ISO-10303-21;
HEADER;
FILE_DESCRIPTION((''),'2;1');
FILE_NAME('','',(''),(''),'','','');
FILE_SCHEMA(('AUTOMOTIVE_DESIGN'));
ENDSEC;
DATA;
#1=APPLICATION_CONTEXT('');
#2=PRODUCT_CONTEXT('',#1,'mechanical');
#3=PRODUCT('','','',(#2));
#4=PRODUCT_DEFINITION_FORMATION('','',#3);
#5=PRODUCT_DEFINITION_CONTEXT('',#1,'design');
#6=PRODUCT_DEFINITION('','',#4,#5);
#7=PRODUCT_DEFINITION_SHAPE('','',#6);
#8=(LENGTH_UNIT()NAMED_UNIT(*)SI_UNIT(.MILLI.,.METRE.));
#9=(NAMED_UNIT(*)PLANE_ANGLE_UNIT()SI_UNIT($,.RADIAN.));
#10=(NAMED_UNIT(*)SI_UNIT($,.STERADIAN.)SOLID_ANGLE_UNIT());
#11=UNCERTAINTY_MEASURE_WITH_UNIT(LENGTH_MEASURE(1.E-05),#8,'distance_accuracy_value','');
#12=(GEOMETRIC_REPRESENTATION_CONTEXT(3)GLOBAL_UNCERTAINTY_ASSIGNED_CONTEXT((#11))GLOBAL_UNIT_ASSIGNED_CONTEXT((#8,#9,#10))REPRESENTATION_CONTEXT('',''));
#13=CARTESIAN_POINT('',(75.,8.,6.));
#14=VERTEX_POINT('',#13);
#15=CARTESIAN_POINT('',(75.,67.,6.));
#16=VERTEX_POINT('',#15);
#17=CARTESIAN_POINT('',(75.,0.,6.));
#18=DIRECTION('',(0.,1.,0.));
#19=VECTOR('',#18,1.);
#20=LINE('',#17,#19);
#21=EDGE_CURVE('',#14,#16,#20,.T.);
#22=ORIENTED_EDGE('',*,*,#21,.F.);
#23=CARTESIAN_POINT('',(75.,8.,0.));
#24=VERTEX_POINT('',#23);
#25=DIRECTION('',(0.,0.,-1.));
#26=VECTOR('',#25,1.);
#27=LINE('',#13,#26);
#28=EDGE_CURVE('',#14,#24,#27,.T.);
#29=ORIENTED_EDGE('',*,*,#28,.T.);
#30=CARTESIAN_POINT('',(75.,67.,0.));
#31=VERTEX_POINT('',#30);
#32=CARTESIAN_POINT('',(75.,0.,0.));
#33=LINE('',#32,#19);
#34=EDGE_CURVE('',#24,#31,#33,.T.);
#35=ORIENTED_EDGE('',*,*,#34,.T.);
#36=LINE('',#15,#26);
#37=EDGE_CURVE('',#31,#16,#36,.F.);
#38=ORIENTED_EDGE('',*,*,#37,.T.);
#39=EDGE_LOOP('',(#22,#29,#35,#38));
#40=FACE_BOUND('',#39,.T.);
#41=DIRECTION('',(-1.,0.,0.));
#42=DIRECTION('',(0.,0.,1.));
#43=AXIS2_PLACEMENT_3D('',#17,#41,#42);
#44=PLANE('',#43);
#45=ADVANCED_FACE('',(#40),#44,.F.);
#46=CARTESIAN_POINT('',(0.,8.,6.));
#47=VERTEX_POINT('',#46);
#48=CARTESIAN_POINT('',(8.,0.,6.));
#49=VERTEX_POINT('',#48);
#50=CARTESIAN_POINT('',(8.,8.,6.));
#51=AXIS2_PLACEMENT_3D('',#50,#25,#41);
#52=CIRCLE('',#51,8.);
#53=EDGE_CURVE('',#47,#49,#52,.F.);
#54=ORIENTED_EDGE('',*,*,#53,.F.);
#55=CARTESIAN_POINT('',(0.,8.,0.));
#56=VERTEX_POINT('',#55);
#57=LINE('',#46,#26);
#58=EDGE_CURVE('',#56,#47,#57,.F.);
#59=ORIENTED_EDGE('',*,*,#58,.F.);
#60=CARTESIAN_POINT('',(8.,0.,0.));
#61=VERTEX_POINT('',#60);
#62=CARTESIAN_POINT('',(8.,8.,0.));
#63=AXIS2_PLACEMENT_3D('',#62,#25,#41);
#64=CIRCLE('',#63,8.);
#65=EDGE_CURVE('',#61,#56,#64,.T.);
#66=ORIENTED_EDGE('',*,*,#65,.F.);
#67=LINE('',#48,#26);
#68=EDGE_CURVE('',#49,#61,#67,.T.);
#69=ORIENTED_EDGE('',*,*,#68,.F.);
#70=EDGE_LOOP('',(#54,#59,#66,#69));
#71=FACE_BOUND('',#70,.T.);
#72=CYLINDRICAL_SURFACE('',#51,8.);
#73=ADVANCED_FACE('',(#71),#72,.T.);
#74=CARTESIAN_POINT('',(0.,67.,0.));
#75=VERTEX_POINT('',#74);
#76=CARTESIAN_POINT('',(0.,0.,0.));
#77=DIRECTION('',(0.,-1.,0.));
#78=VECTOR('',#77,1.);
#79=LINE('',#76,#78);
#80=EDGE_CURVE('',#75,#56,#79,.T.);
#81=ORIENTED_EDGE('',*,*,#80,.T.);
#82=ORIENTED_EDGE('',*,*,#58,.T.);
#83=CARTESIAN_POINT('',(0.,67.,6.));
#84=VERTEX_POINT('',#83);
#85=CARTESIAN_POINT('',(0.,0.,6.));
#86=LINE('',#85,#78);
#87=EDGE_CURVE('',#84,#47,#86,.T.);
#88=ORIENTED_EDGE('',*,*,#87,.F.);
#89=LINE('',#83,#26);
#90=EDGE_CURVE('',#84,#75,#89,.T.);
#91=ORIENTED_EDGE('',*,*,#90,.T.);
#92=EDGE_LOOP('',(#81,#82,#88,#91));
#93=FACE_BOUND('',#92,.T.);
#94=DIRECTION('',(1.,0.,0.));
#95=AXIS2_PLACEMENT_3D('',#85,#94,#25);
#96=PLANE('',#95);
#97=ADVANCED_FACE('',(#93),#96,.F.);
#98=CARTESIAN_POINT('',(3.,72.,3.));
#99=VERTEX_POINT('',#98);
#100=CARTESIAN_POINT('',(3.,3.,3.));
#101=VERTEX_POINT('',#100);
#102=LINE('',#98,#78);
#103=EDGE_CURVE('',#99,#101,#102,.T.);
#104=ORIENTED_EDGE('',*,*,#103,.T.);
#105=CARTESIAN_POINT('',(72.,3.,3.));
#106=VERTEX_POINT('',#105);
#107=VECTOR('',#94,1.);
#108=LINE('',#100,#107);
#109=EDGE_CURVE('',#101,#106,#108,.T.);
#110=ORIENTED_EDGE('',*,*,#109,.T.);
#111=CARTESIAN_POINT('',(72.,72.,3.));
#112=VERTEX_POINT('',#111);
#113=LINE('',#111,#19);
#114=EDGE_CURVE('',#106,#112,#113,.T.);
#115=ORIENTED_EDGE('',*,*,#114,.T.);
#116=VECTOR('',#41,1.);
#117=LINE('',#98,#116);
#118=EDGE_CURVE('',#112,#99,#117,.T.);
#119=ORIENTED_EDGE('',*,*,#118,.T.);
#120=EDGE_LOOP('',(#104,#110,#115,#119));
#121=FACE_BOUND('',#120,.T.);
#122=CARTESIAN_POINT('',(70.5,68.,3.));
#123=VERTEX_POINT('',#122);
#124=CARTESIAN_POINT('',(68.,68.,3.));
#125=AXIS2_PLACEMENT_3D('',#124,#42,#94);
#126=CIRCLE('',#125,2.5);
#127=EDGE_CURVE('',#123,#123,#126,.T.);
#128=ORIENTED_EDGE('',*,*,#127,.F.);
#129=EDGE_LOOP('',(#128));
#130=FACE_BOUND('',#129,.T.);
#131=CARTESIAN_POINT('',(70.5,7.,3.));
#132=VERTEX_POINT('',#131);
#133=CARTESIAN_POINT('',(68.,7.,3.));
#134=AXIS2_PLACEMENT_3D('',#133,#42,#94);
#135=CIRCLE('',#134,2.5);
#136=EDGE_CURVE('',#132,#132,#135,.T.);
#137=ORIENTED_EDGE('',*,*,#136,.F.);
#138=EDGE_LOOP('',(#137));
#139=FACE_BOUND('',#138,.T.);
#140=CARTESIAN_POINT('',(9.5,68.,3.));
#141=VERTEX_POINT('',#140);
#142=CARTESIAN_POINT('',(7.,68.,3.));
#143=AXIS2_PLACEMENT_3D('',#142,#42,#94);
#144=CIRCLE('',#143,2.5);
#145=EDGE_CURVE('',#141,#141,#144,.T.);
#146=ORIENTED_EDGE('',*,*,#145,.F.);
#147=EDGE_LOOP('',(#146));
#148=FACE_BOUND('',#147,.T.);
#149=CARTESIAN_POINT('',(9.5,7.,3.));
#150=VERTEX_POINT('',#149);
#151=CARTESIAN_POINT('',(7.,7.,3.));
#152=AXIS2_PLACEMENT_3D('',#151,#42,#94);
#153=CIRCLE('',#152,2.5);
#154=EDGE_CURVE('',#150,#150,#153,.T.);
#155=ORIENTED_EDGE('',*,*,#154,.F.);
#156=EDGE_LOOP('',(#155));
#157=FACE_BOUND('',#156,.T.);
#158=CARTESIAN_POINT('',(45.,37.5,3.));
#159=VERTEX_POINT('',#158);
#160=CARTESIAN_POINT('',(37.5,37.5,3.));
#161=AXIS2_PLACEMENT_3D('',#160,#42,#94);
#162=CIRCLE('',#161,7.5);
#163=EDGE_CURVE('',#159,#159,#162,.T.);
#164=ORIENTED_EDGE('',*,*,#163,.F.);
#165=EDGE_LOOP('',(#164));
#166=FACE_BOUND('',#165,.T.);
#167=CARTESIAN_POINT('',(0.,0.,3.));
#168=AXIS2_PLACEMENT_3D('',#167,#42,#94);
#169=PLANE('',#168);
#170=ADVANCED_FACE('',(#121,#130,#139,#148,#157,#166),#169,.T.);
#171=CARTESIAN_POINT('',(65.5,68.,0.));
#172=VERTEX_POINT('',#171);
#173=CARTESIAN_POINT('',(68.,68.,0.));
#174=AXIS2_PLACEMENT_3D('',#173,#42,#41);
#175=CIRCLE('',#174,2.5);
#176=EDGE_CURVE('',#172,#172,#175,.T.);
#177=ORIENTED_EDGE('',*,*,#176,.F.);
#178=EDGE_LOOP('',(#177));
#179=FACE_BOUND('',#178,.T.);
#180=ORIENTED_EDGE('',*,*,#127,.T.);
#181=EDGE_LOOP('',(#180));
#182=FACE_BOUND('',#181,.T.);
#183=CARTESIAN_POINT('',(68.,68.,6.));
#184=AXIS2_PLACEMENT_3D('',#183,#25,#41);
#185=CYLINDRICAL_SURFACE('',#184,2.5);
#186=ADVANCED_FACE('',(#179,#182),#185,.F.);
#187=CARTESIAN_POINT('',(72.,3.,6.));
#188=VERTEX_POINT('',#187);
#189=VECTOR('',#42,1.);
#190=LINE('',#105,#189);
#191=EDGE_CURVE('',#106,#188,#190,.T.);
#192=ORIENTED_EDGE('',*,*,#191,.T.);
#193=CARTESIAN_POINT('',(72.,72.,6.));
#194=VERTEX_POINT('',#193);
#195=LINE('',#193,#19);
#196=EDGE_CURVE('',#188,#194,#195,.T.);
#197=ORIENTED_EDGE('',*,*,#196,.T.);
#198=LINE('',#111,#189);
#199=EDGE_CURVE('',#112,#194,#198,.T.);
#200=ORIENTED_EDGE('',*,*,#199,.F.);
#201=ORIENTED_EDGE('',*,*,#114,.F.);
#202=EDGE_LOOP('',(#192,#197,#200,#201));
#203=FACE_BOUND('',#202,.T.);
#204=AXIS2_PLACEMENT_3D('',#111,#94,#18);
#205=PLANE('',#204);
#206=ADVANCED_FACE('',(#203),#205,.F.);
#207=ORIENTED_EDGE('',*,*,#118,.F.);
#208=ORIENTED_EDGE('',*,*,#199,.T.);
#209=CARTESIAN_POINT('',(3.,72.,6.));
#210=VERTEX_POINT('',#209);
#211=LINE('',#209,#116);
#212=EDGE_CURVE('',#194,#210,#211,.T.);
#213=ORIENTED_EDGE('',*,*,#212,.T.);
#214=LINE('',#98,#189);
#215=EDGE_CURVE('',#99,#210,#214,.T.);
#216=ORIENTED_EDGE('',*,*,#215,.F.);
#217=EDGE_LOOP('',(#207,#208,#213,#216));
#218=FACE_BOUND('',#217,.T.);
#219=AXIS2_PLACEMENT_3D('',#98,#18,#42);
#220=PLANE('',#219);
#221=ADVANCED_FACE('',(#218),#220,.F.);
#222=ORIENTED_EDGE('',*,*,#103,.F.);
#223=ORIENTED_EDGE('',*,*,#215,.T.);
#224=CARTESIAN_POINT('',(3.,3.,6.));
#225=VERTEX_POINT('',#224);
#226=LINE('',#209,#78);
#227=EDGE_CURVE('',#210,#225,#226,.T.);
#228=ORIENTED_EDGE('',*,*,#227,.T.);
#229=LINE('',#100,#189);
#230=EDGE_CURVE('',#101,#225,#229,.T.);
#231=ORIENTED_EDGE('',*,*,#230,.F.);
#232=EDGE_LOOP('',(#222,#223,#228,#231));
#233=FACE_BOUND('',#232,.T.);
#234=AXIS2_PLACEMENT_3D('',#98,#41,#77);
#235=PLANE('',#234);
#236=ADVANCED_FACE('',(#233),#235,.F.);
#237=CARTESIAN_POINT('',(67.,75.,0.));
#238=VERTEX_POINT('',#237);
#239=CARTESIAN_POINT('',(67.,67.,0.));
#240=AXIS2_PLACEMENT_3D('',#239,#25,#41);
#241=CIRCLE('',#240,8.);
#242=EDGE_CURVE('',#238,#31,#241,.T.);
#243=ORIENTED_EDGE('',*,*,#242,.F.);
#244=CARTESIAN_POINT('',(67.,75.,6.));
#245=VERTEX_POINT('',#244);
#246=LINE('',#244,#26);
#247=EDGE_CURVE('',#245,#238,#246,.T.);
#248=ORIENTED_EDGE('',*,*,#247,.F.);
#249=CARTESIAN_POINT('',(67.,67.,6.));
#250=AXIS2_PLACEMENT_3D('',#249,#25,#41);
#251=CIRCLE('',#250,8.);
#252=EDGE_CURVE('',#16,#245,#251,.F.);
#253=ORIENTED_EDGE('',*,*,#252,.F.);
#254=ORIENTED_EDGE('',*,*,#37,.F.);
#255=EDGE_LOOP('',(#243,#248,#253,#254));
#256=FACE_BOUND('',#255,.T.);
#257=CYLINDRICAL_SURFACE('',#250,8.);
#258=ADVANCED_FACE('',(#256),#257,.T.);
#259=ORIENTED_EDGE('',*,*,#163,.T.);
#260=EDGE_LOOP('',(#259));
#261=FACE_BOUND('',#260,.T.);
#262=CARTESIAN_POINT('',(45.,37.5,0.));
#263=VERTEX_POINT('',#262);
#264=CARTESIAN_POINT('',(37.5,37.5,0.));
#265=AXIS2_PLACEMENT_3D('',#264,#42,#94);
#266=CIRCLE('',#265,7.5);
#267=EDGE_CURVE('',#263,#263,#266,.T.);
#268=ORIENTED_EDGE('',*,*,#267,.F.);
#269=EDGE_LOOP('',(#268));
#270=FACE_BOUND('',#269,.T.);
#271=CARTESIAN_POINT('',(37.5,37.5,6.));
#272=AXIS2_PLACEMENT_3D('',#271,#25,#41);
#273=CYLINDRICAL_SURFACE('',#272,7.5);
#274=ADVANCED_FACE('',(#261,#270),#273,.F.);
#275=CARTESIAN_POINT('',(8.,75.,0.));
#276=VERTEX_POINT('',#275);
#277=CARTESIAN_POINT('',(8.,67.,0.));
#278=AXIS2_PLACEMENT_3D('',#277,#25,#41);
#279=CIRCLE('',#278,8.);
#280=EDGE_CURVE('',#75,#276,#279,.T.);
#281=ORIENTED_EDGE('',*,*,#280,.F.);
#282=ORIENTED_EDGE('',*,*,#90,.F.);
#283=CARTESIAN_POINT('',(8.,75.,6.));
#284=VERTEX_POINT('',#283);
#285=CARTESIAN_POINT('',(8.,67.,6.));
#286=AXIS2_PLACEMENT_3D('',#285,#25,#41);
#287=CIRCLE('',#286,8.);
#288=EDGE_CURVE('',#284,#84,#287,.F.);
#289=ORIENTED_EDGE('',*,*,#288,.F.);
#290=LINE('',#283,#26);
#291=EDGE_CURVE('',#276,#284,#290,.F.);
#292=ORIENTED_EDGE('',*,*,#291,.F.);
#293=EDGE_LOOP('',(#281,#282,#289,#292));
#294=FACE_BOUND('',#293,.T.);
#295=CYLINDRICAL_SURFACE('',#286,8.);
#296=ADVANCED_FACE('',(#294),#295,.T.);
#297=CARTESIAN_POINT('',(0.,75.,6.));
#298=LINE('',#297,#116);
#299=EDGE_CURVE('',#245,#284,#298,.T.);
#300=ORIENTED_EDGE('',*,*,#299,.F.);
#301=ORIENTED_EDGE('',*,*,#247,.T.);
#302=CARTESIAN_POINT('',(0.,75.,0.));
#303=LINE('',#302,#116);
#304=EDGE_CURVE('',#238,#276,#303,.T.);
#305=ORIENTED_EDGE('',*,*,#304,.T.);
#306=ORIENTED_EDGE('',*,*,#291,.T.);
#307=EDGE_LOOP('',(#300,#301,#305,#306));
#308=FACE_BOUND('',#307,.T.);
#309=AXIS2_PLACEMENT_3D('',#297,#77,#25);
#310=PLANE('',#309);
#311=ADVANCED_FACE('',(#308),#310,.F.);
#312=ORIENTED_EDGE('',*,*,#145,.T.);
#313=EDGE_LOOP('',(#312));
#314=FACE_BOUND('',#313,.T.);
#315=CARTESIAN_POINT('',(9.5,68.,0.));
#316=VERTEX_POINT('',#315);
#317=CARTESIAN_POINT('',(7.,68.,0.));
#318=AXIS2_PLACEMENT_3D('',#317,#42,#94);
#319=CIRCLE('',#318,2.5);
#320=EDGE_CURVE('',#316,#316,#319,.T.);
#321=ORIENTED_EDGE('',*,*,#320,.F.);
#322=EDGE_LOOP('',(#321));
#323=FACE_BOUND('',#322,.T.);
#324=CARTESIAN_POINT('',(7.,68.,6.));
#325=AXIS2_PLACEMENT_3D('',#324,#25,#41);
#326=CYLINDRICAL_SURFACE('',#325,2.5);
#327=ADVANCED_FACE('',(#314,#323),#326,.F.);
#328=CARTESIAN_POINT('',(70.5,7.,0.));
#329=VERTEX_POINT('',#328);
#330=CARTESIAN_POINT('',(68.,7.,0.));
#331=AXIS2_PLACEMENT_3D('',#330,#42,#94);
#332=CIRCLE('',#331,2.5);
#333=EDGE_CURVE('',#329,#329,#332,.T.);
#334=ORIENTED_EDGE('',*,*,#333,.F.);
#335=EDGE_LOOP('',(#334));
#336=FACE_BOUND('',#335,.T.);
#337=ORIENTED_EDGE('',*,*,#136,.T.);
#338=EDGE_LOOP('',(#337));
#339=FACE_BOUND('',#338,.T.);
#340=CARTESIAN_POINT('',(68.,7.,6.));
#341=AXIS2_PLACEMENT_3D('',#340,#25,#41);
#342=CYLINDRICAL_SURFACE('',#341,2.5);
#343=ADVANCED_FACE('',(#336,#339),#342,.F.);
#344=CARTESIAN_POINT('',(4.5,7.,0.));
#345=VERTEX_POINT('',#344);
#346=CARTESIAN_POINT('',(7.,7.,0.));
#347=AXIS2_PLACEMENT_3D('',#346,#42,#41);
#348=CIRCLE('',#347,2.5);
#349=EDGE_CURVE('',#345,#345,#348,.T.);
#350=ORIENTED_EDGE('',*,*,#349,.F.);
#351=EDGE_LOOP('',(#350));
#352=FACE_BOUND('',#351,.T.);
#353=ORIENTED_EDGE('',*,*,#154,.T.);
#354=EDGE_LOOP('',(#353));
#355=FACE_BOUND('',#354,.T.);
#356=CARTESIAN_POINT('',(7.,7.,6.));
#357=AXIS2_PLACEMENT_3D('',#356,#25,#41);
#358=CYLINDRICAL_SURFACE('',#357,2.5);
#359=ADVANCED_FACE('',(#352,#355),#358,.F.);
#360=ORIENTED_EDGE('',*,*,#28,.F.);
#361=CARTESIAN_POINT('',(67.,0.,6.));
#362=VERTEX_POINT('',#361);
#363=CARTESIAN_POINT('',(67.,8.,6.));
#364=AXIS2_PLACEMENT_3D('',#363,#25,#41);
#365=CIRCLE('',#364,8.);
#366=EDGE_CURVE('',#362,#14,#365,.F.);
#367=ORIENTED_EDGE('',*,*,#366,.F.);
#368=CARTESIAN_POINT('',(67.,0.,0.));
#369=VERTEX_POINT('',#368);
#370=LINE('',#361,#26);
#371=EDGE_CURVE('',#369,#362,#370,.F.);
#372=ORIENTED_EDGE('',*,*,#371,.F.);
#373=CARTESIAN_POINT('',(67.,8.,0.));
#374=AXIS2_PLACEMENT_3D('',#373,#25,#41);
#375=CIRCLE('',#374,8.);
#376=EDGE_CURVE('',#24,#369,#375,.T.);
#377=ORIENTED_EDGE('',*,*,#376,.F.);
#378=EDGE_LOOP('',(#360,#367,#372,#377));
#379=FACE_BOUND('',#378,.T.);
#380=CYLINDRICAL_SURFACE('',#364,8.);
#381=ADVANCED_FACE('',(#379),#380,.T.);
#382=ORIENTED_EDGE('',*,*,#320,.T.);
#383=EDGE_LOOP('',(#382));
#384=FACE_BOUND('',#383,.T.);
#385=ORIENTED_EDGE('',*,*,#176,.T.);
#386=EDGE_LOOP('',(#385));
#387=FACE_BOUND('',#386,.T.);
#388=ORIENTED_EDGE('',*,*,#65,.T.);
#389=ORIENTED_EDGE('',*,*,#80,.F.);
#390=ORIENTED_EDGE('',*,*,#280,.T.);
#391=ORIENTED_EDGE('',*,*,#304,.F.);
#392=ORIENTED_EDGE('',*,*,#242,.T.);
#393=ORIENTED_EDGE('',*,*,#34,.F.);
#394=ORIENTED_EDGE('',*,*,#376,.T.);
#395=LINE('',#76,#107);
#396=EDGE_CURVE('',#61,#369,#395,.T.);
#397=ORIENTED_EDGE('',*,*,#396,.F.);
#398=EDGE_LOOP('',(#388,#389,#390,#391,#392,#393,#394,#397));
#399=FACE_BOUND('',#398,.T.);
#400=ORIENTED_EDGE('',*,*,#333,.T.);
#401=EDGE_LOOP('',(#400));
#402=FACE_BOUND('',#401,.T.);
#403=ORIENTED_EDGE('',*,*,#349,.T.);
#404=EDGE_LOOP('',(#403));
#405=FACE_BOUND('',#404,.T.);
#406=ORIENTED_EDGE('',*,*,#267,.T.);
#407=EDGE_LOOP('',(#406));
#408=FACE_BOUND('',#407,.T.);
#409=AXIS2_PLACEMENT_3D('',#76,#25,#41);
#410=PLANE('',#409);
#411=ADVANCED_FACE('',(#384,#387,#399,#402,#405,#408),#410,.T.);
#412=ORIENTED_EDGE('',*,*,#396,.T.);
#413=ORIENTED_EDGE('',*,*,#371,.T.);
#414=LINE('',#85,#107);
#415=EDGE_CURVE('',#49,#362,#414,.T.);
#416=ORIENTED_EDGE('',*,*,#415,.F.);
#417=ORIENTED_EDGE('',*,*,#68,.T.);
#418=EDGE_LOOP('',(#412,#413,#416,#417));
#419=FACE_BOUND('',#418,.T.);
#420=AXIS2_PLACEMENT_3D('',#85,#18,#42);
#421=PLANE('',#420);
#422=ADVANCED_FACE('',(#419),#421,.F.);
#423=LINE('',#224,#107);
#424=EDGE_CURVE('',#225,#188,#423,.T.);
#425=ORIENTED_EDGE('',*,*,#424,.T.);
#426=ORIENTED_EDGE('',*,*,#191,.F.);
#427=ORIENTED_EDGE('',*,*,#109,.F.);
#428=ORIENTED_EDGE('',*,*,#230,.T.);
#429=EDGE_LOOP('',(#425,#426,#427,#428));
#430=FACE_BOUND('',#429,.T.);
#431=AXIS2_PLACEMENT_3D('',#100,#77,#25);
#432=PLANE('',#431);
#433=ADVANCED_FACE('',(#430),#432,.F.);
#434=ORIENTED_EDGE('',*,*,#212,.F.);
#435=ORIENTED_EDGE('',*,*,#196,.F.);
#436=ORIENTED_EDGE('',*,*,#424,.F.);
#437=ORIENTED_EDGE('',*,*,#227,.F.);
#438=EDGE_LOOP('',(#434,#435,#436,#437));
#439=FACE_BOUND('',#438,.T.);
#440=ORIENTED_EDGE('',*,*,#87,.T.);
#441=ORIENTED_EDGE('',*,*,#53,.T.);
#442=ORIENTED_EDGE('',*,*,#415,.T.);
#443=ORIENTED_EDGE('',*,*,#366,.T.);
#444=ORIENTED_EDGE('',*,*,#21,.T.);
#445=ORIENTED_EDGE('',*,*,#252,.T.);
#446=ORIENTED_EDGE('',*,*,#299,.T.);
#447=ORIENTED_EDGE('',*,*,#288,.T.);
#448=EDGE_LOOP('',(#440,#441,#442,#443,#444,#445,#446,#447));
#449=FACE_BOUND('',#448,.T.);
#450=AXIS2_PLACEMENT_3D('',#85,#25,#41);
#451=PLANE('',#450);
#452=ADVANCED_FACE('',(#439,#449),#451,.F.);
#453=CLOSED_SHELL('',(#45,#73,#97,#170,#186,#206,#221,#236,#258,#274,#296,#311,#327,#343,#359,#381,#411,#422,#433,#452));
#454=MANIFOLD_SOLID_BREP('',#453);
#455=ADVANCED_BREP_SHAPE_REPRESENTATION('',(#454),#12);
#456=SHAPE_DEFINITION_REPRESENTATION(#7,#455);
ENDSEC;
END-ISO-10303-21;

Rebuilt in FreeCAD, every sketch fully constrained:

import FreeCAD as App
import Part
import Sketcher

V = App.Vector


def edges_at(feature, points):
    """Names of the edges that pass closest to the given points."""
    edges = feature.Shape.Edges
    near = lambda p: min(range(len(edges)), key=lambda i: edges[i].distToShape(Part.Vertex(*p))[0])
    return sorted({f"Edge{near(p) + 1}" for p in points})


def add_polygon(sketch, points):
    """Adds a closed chain of lines whose ends are joined by coincident constraints."""
    first, n = sketch.GeometryCount, len(points)
    for a, b in zip(points, points[1:] + points[:1]):
        sketch.addGeometry(Part.LineSegment(App.Vector(*a, 0), App.Vector(*b, 0)), False)
    for i in range(n):
        sketch.addConstraint(Sketcher.Constraint("Coincident", first + i, 2, first + (i + 1) % n, 1))

doc = App.newDocument("Part")
body = doc.addObject("PartDesign::Body", "Body")

sketch1 = body.newObject("Sketcher::SketchObject", "Sketch")
sketch1.AttachmentSupport = (doc.getObject("XY_Plane"), [""])
sketch1.MapMode = "FlatFace"
add_polygon(sketch1, [(0, 75), (0, 0), (75, 0), (75, 75)])
sketch1.addGeometry(Part.Circle(V(7, 7, 0), V(0, 0, 1), 2.5), False)
sketch1.addGeometry(Part.Circle(V(68, 7, 0), V(0, 0, 1), 2.5), False)
sketch1.addGeometry(Part.Circle(V(7, 68, 0), V(0, 0, 1), 2.5), False)
sketch1.addGeometry(Part.Circle(V(37.5, 37.5, 0), V(0, 0, 1), 7.5), False)
sketch1.addGeometry(Part.Circle(V(68, 68, 0), V(0, 0, 1), 2.5), False)
sketch1.addConstraint([
    Sketcher.Constraint("Vertical", 0),
    Sketcher.Constraint("Horizontal", 1),
    Sketcher.Constraint("Vertical", 2),
    Sketcher.Constraint("Horizontal", 3),
    Sketcher.Constraint("Coincident", 0, 2, -1, 1),
    Sketcher.Constraint("Equal", 4, 5),
    Sketcher.Constraint("Equal", 5, 6),
    Sketcher.Constraint("Equal", 6, 8),
    Sketcher.Constraint("Horizontal", 4, 3, 5, 3),
    Sketcher.Constraint("Horizontal", 6, 3, 8, 3),
    Sketcher.Constraint("Vertical", 4, 3, 6, 3),
    Sketcher.Constraint("Vertical", 5, 3, 8, 3),
    Sketcher.Constraint("Equal", 3, 0),
    Sketcher.Constraint("Diameter", 4, 5.0),
    Sketcher.Constraint("Diameter", 7, 15.0),
    Sketcher.Constraint("DistanceX", 1, 1, 1, 2, 75.0),
    Sketcher.Constraint("DistanceX", -1, 1, 4, 3, 7.0),
    Sketcher.Constraint("DistanceY", -1, 1, 4, 3, 7.0),
    Sketcher.Constraint("DistanceX", -1, 1, 5, 3, 68.0),
    Sketcher.Constraint("DistanceY", -1, 1, 6, 3, 68.0),
    Sketcher.Constraint("DistanceX", -1, 1, 7, 3, 37.5),
    Sketcher.Constraint("DistanceY", -1, 1, 7, 3, 37.5),
])
pad1 = body.newObject("PartDesign::Pad", "Pad")
pad1.Profile = sketch1
pad1.Length = 6

sketch2 = body.newObject("Sketcher::SketchObject", "Sketch001")
sketch2.AttachmentSupport = (doc.getObject("XY_Plane"), [""])
sketch2.MapMode = "FlatFace"
sketch2.AttachmentOffset = App.Placement(V(0, 0, 6), App.Rotation())
add_polygon(sketch2, [(3, 72), (3, 3), (72, 3), (72, 72)])
sketch2.addConstraint([
    Sketcher.Constraint("Vertical", 0),
    Sketcher.Constraint("Horizontal", 1),
    Sketcher.Constraint("Vertical", 2),
    Sketcher.Constraint("Horizontal", 3),
    Sketcher.Constraint("Equal", 3, 0),
    Sketcher.Constraint("DistanceX", 1, 1, 1, 2, 69.0),
    Sketcher.Constraint("DistanceX", -1, 1, 0, 2, 3.0),
    Sketcher.Constraint("DistanceY", -1, 1, 0, 2, 3.0),
])
pocket1 = body.newObject("PartDesign::Pocket", "Pocket")
pocket1.Profile = sketch2
pocket1.Length = 3
doc.recompute()

fillet = body.newObject("PartDesign::Fillet", "Fillet")
fillet.Base = (pocket1, edges_at(pocket1, [
    (0, 75, 3),
    (75, 75, 3),
    (75, 0, 3),
    (0, 0, 3),
]))
fillet.Radius = 8

doc.recompute()
